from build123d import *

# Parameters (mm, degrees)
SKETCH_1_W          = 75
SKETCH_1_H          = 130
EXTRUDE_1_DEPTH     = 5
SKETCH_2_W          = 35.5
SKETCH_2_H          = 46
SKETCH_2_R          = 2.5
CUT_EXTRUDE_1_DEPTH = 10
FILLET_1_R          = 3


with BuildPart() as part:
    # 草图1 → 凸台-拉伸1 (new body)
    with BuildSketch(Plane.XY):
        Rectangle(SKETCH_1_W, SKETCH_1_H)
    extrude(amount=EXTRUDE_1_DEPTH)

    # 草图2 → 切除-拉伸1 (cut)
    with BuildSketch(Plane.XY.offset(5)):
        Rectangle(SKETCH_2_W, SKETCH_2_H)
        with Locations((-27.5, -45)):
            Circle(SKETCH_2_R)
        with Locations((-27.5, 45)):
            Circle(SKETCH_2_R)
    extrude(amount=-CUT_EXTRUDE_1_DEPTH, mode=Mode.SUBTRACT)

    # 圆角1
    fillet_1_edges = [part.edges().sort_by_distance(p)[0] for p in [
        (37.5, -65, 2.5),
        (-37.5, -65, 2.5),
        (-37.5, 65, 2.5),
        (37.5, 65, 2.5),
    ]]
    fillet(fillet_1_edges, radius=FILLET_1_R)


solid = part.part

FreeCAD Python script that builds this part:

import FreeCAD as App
import Part
import Sketcher

V = App.Vector


def edges_at(feature, points):
    """Names of the edges that pass closest to the given points."""
    edges = feature.Shape.Edges
    near = lambda p: min(range(len(edges)), key=lambda i: edges[i].distToShape(Part.Vertex(*p))[0])
    return sorted({f"Edge{near(p) + 1}" for p in points})

doc = App.newDocument("Part")
params = doc.addObject("Spreadsheet::Sheet", "Params")
for row, (alias, value) in enumerate([
    ("sketch1_width", "75 mm"),
    ("sketch1_height", "130 mm"),
    ("pad1_length", "5 mm"),
    ("sketch2_diameter", "5 mm"),
    ("sketch2_height", "46 mm"),
    ("sketch2_width", "35.5 mm"),
    ("pocket1_length", "10 mm"),
    ("fillet_radius", "3 mm"),
], start=1):
    params.set(f"A{row}", alias)
    params.set(f"B{row}", "=" + value)
    params.setAlias(f"B{row}", alias)

body = doc.addObject("PartDesign::Body", "Body")

sketch1 = doc.addObject("Sketcher::SketchObject", "Sketch")
body.addObject(sketch1)
sketch1.AttachmentSupport = (doc.XY_Plane, [""])
sketch1.MapMode = "FlatFace"
sketch1.addGeometry([
    Part.LineSegment(V(-38, 65, 0), V(-38, -65, 0)),
    Part.LineSegment(V(-38, -65, 0), V(38, -65, 0)),
    Part.LineSegment(V(38, -65, 0), V(38, 65, 0)),
    Part.LineSegment(V(38, 65, 0), V(-38, 65, 0)),
], False)
sketch1.addConstraint([
    Sketcher.Constraint("Coincident", 0, 2, 1, 1),
    Sketcher.Constraint("Coincident", 1, 2, 2, 1),
    Sketcher.Constraint("Coincident", 2, 2, 3, 1),
    Sketcher.Constraint("Coincident", 3, 2, 0, 1),
    Sketcher.Constraint("Vertical", 0),
    Sketcher.Constraint("Horizontal", 1),
    Sketcher.Constraint("Vertical", 2),
    Sketcher.Constraint("Horizontal", 3),
    Sketcher.Constraint("Symmetric", 0, 2, 2, 2, -1, 1),
    Sketcher.Constraint("DistanceX", 1, 1, 1, 2, 75.0),
    Sketcher.Constraint("DistanceY", 0, 2, 0, 1, 130.0),
])
sketch1.setExpression("Constraints[9]", "Params.sketch1_width")
sketch1.setExpression("Constraints[10]", "Params.sketch1_height")
pad1 = doc.addObject("PartDesign::Pad", "Pad")
body.addObject(pad1)
pad1.Profile = sketch1
pad1.setExpression("Length", "Params.pad1_length")

sketch2 = doc.addObject("Sketcher::SketchObject", "Sketch001")
body.addObject(sketch2)
sketch2.AttachmentSupport = (doc.XY_Plane, [""])
sketch2.MapMode = "FlatFace"
sketch2.AttachmentOffset = App.Placement(V(0, 0, 5), App.Rotation())
sketch2.addGeometry([
    Part.LineSegment(V(-17.8, 23, 0), V(-17.8, -23, 0)),
    Part.LineSegment(V(-17.8, -23, 0), V(17.8, -23, 0)),
    Part.LineSegment(V(17.8, -23, 0), V(17.8, 23, 0)),
    Part.LineSegment(V(17.8, 23, 0), V(-17.8, 23, 0)),
    Part.Circle(V(-27.5, -45, 0), V(0, 0, 1), 2.5),
    Part.Circle(V(-27.5, 45, 0), V(0, 0, 1), 2.5),
], False)
sketch2.addConstraint([
    Sketcher.Constraint("Coincident", 0, 2, 1, 1),
    Sketcher.Constraint("Coincident", 1, 2, 2, 1),
    Sketcher.Constraint("Coincident", 2, 2, 3, 1),
    Sketcher.Constraint("Coincident", 3, 2, 0, 1),
    Sketcher.Constraint("Vertical", 0),
    Sketcher.Constraint("Horizontal", 1),
    Sketcher.Constraint("Vertical", 2),
    Sketcher.Constraint("Horizontal", 3),
    Sketcher.Constraint("Equal", 4, 5),
    Sketcher.Constraint("Symmetric", 0, 2, 2, 2, -1, 1),
    Sketcher.Constraint("Symmetric", 4, 3, 5, 3, -1),
    Sketcher.Constraint("Diameter", 4, 5.0),
    Sketcher.Constraint("DistanceY", 0, 2, 0, 1, 46.0),
    Sketcher.Constraint("DistanceX", 1, 1, 1, 2, 35.5),
    Sketcher.Constraint("DistanceY", 4, 3, -1, 1, 45.0),
    Sketcher.Constraint("DistanceX", 4, 3, -1, 1, 27.5),
])
sketch2.setExpression("Constraints[11]", "Params.sketch2_diameter")
sketch2.setExpression("Constraints[12]", "Params.sketch2_height")
sketch2.setExpression("Constraints[13]", "Params.sketch2_width")
pocket1 = doc.addObject("PartDesign::Pocket", "Pocket")
body.addObject(pocket1)
pocket1.Profile = sketch2
pocket1.setExpression("Length", "Params.pocket1_length")
doc.recompute()

fillet = doc.addObject("PartDesign::Fillet", "Fillet")
body.addObject(fillet)
fillet.Base = (pocket1, edges_at(pocket1, [
    (37.5, -65, 2.5),
    (-37.5, -65, 2.5),
    (-37.5, 65, 2.5),
    (37.5, 65, 2.5),
]))
fillet.setExpression("Radius", "Params.fillet_radius")

doc.recompute()
